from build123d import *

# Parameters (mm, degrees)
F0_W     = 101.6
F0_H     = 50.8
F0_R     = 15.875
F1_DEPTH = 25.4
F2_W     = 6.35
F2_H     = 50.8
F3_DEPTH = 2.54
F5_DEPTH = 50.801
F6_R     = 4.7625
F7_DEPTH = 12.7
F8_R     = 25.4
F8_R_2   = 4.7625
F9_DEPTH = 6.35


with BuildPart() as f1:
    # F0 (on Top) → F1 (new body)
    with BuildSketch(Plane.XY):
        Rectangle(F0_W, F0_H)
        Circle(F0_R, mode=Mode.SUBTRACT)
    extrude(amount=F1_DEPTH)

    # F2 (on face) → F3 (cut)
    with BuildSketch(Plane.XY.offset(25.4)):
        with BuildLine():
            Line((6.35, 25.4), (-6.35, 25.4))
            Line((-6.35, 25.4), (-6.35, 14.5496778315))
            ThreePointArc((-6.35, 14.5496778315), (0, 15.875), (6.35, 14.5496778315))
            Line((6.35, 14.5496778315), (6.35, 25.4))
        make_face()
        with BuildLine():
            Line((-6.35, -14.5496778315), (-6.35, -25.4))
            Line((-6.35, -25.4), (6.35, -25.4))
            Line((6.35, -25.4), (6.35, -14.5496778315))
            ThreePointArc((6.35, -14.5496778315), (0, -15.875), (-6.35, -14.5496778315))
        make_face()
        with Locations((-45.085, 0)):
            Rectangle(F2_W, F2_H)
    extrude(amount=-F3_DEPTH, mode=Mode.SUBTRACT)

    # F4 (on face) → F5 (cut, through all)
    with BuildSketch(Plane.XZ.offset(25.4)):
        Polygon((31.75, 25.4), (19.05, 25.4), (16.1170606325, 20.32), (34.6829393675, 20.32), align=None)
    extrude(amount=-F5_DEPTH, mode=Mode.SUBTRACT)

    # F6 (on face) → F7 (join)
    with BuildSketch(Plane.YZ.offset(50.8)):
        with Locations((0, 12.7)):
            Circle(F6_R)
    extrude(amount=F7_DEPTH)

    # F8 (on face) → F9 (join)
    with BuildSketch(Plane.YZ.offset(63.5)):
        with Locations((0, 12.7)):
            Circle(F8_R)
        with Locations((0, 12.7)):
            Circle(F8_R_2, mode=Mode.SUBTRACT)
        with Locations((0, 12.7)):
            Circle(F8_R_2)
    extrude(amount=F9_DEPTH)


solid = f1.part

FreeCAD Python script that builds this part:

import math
import FreeCAD as App
import Part
import Sketcher
from FreeCAD import Vector
Q = App.Units.Quantity

doc = App.newDocument("Part")
body = doc.addObject("PartDesign::Body", "Body")

# Sketch on XY plane
sketch1 = body.newObject("Sketcher::SketchObject", "Sketch")
sketch1.AttachmentSupport = (doc.getObject("XY_Plane"), [""])
sketch1.MapMode = "FlatFace"
sketch1.addGeometry([
    Part.LineSegment(Vector(-51, 25, 0), Vector(-51, -25, 0)),  # 0
    Part.LineSegment(Vector(-51, -25, 0), Vector(51, -25, 0)),  # 1
    Part.LineSegment(Vector(51, -25, 0), Vector(51, 25, 0)),  # 2
    Part.LineSegment(Vector(51, 25, 0), Vector(-51, 25, 0)),  # 3
    Part.Circle(Vector(0, 0, 0), Vector(0, 0, 1), 16),  # 4
], False)
sketch1.addConstraint([
    Sketcher.Constraint("Coincident", 0, 2, 1, 1),
    Sketcher.Constraint("Coincident", 1, 2, 2, 1),
    Sketcher.Constraint("Coincident", 2, 2, 3, 1),
    Sketcher.Constraint("Coincident", 3, 2, 0, 1),
    Sketcher.Constraint("Vertical", 0),
    Sketcher.Constraint("Horizontal", 1),
    Sketcher.Constraint("Vertical", 2),
    Sketcher.Constraint("Horizontal", 3),
    Sketcher.Constraint("Coincident", 4, 3, -1, 1),
    Sketcher.Constraint("Symmetric", 0, 2, 2, 2, -1, 1),
    Sketcher.Constraint("Diameter", 4, Q("1.25 in")),
    Sketcher.Constraint("DistanceX", 1, 1, 1, 2, Q("4 in")),
    Sketcher.Constraint("DistanceY", 0, 2, 0, 1, Q("2 in")),
])
pad1 = body.newObject("PartDesign::Pad", "Pad")
pad1.Profile = sketch1
pad1.Length = Q("1 in")

# Sketch on XY plane
sketch2 = body.newObject("Sketcher::SketchObject", "Sketch001")
sketch2.AttachmentSupport = (doc.getObject("XY_Plane"), [""])
sketch2.MapMode = "FlatFace"
sketch2.AttachmentOffset = App.Placement(Vector(0, 0, 1 * 25.4), App.Rotation())
sketch2.addGeometry([
    Part.LineSegment(Vector(6, 25, 0), Vector(-6, 25, 0)),  # 0
    Part.LineSegment(Vector(-6, 25, 0), Vector(-6, 15, 0)),  # 1
    Part.ArcOfCircle(Part.Circle(Vector(0, 0, 0), Vector(0, 0, 1), 16), math.radians(66), math.radians(114)),  # 2
    Part.LineSegment(Vector(6, 15, 0), Vector(6, 25, 0)),  # 3
    Part.LineSegment(Vector(-6, -15, 0), Vector(-6, -25, 0)),  # 4
    Part.LineSegment(Vector(-6, -25, 0), Vector(6, -25, 0)),  # 5
    Part.LineSegment(Vector(6, -25, 0), Vector(6, -15, 0)),  # 6
    Part.ArcOfCircle(Part.Circle(Vector(0, 0, 0), Vector(0, 0, 1), 16), math.radians(-114), math.radians(-66)),  # 7
    Part.LineSegment(Vector(-48, 25, 0), Vector(-48, -25, 0)),  # 8
    Part.LineSegment(Vector(-48, -25, 0), Vector(-42, -25, 0)),  # 9
    Part.LineSegment(Vector(-42, -25, 0), Vector(-42, 25, 0)),  # 10
    Part.LineSegment(Vector(-42, 25, 0), Vector(-48, 25, 0)),  # 11
], False)
sketch2.addConstraint([
    Sketcher.Constraint("Coincident", 0, 2, 1, 1),
    Sketcher.Constraint("Coincident", 1, 2, 2, 2),
    Sketcher.Constraint("Coincident", 2, 1, 3, 1),
    Sketcher.Constraint("Coincident", 3, 2, 0, 1),
    Sketcher.Constraint("Coincident", 4, 2, 5, 1),
    Sketcher.Constraint("Coincident", 5, 2, 6, 1),
    Sketcher.Constraint("Coincident", 6, 2, 7, 2),
    Sketcher.Constraint("Coincident", 7, 1, 4, 1),
    Sketcher.Constraint("Coincident", 8, 2, 9, 1),
    Sketcher.Constraint("Coincident", 9, 2, 10, 1),
    Sketcher.Constraint("Coincident", 10, 2, 11, 1),
    Sketcher.Constraint("Coincident", 11, 2, 8, 1),
    Sketcher.Constraint("Horizontal", 0),
    Sketcher.Constraint("Vertical", 1),
    Sketcher.Constraint("Vertical", 3),
    Sketcher.Constraint("Vertical", 4),
    Sketcher.Constraint("Horizontal", 5),
    Sketcher.Constraint("Vertical", 6),
    Sketcher.Constraint("Vertical", 8),
    Sketcher.Constraint("Horizontal", 9),
    Sketcher.Constraint("Vertical", 10),
    Sketcher.Constraint("Horizontal", 11),
    Sketcher.Constraint("Coincident", 2, 3, -1, 1),
    Sketcher.Constraint("Coincident", 7, 3, -1, 1),
    Sketcher.Constraint("Equal", 2, 7),
    Sketcher.Constraint("Symmetric", 3, 2, 4, 2, -1, 1),
    Sketcher.Constraint("Horizontal", 1, 2, 2, 1),
    Sketcher.Constraint("Horizontal", 6, 2, 7, 1),
    Sketcher.Constraint("Horizontal", 5, 2, 8, 2),
    Sketcher.Constraint("Horizontal", 3, 2, 10, 2),
    Sketcher.Constraint("DistanceY", 8, 2, 8, 1, Q("2 in")),
    Sketcher.Constraint("DistanceX", 0, 2, 0, 1, Q("0.5 in")),
    Sketcher.Constraint("Radius", 2, Q("0.625 in")),
    Sketcher.Constraint("DistanceX", 9, 1, 9, 2, Q("0.25 in")),
    Sketcher.Constraint("DistanceX", 8, 2, -1, 1, Q("1.9 in")),
])
pocket1 = body.newObject("PartDesign::Pocket", "Pocket")
pocket1.Profile = sketch2
pocket1.Length = Q("0.1 in")

# Sketch on XZ plane
sketch3 = body.newObject("Sketcher::SketchObject", "Sketch002")
sketch3.AttachmentSupport = (doc.getObject("XZ_Plane"), [""])
sketch3.MapMode = "FlatFace"
sketch3.AttachmentOffset = App.Placement(Vector(0, 0, 1 * 25.4), App.Rotation())
sketch3.addGeometry([
    Part.LineSegment(Vector(32, 25, 0), Vector(19, 25, 0)),
    Part.LineSegment(Vector(19, 25, 0), Vector(16, 20, 0)),
    Part.LineSegment(Vector(16, 20, 0), Vector(35, 20, 0)),
    Part.LineSegment(Vector(35, 20, 0), Vector(32, 25, 0)),
], False)
sketch3.addConstraint([
    Sketcher.Constraint("Coincident", 0, 2, 1, 1),
    Sketcher.Constraint("Coincident", 1, 2, 2, 1),
    Sketcher.Constraint("Coincident", 2, 2, 3, 1),
    Sketcher.Constraint("Coincident", 3, 2, 0, 1),
    Sketcher.Constraint("Horizontal", 0),
    Sketcher.Constraint("Horizontal", 2),
    Sketcher.Constraint("Equal", 1, 3),
    Sketcher.Constraint("DistanceX", 0, 2, 0, 1, Q("0.5 in")),
    Sketcher.Constraint("DistanceY", -1, 1, 0, 2, Q("1 in")),
    Sketcher.Constraint("Angle", 1, Q("-120 deg")),
    Sketcher.Constraint("DistanceY", -1, 1, 1, 2, Q("0.8 in")),
    Sketcher.Constraint("DistanceX", -1, 1, 0, 2, Q("0.75 in")),
])
pocket2 = body.newObject("PartDesign::Pocket", "Pocket001")
pocket2.Profile = sketch3
pocket2.Type = "ThroughAll"

# Sketch on YZ plane
sketch4 = body.newObject("Sketcher::SketchObject", "Sketch003")
sketch4.AttachmentSupport = (doc.getObject("YZ_Plane"), [""])
sketch4.MapMode = "FlatFace"
sketch4.AttachmentOffset = App.Placement(Vector(0, 0, 2 * 25.4), App.Rotation())
sketch4.addGeometry(Part.Circle(Vector(0, 12.7, 0), Vector(0, 0, 1), 4.8), False)
sketch4.addConstraint([
    Sketcher.Constraint("PointOnObject", 0, 3, -2),
    Sketcher.Constraint("Diameter", 0, Q("0.375 in")),
    Sketcher.Constraint("DistanceY", -1, 1, 0, 3, Q("0.5 in")),
])
pad2 = body.newObject("PartDesign::Pad", "Pad001")
pad2.Profile = sketch4
pad2.Length = Q("0.5 in")

# Sketch on YZ plane
sketch5 = body.newObject("Sketcher::SketchObject", "Sketch004")
sketch5.AttachmentSupport = (doc.getObject("YZ_Plane"), [""])
sketch5.MapMode = "FlatFace"
sketch5.AttachmentOffset = App.Placement(Vector(0, 0, 2.5 * 25.4), App.Rotation())
sketch5.addGeometry(Part.Circle(Vector(0, 13, 0), Vector(0, 0, 1), 25), False)
sketch5.addConstraint([
    Sketcher.Constraint("PointOnObject", 0, 3, -2),
    Sketcher.Constraint("Diameter", 0, Q("2 in")),
    Sketcher.Constraint("DistanceY", -1, 1, 0, 3, Q("0.5 in")),
])
pad3 = body.newObject("PartDesign::Pad", "Pad002")
pad3.Profile = sketch5
pad3.Length = Q("0.25 in")

doc.recompute()
